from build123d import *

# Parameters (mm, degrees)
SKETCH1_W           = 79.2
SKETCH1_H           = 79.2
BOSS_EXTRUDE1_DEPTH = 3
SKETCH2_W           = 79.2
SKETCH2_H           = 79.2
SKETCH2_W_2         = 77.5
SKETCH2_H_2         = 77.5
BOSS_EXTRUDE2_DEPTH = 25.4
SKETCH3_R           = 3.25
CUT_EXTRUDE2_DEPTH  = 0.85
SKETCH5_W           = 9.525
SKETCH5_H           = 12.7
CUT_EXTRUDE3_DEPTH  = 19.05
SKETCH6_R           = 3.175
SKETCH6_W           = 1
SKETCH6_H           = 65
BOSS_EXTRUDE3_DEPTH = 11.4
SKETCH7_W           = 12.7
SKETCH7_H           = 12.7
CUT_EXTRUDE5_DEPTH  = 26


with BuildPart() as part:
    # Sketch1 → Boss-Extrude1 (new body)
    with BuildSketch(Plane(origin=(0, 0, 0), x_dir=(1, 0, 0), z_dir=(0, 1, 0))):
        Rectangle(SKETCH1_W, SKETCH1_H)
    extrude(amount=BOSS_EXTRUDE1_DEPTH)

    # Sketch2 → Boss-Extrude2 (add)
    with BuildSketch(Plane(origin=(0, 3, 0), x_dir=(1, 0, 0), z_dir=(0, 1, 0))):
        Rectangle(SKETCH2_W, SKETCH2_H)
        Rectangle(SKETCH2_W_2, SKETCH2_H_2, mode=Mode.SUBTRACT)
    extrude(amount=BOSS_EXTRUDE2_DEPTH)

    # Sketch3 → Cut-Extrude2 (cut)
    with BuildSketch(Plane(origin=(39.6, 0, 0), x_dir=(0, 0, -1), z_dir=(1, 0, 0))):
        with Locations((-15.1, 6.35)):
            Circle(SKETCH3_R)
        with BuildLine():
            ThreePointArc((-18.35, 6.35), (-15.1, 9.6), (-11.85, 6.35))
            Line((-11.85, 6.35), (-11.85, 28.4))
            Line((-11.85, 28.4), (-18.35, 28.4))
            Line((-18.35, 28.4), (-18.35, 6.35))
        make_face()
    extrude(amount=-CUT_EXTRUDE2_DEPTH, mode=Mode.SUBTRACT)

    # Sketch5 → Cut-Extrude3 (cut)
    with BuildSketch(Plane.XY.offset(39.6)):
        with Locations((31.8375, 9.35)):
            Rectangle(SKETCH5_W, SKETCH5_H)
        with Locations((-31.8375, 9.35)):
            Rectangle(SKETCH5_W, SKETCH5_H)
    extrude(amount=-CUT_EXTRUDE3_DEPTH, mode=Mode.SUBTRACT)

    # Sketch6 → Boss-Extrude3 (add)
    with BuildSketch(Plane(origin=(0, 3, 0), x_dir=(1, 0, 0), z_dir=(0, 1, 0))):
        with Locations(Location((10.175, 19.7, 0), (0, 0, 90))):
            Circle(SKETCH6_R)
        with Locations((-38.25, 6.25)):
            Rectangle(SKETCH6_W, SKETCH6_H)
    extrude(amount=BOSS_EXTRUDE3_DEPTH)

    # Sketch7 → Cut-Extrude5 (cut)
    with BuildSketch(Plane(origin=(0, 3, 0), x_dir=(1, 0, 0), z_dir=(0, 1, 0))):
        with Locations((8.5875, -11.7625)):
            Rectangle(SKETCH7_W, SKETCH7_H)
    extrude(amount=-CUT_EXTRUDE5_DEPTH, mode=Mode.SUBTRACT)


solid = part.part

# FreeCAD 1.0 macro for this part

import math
import FreeCAD as App
import Part
import Sketcher

V = App.Vector

doc = App.newDocument("Part")
body = doc.addObject("PartDesign::Body", "Body")

# Sketch on XZ plane
sketch1 = body.newObject("Sketcher::SketchObject", "Sketch")
sketch1.AttachmentSupport = (doc.getObject("XZ_Plane"), [""])
sketch1.MapMode = "FlatFace"
sketch1.addGeometry([
    Part.LineSegment(V(-39.6, -39.6, 0), V(-39.6, 39.6, 0)),
    Part.LineSegment(V(-39.6, 39.6, 0), V(39.6, 39.6, 0)),
    Part.LineSegment(V(39.6, 39.6, 0), V(39.6, -39.6, 0)),
    Part.LineSegment(V(39.6, -39.6, 0), V(-39.6, -39.6, 0)),
], False)
sketch1.addConstraint([
    Sketcher.Constraint("Coincident", 0, 2, 1, 1),
    Sketcher.Constraint("Coincident", 1, 2, 2, 1),
    Sketcher.Constraint("Coincident", 2, 2, 3, 1),
    Sketcher.Constraint("Coincident", 3, 2, 0, 1),
    Sketcher.Constraint("Vertical", 0),
    Sketcher.Constraint("Horizontal", 1),
    Sketcher.Constraint("Vertical", 2),
    Sketcher.Constraint("Horizontal", 3),
    Sketcher.Constraint("Symmetric", 0, 2, 2, 2, -1, 1),
    Sketcher.Constraint("Equal", 3, 0),
    Sketcher.Constraint("DistanceX", 1, 1, 1, 2, 79.2),
])
pad1 = body.newObject("PartDesign::Pad", "Pad")
pad1.Profile = sketch1
pad1.Length = 3
pad1.Reversed = True

# Sketch on XZ plane
sketch2 = body.newObject("Sketcher::SketchObject", "Sketch001")
sketch2.AttachmentSupport = (doc.getObject("XZ_Plane"), [""])
sketch2.MapMode = "FlatFace"
sketch2.AttachmentOffset = App.Placement(V(0, 0, -3), App.Rotation())
sketch2.addGeometry([
    Part.LineSegment(V(-39.6, -39.6, 0), V(-39.6, 39.6, 0)),  # 0
    Part.LineSegment(V(-39.6, 39.6, 0), V(39.6, 39.6, 0)),  # 1
    Part.LineSegment(V(39.6, 39.6, 0), V(39.6, -39.6, 0)),  # 2
    Part.LineSegment(V(39.6, -39.6, 0), V(-39.6, -39.6, 0)),  # 3
    Part.LineSegment(V(38.75, 38.75, 0), V(-38.75, 38.75, 0)),  # 4
    Part.LineSegment(V(-38.75, 38.75, 0), V(-38.75, -38.75, 0)),  # 5
    Part.LineSegment(V(-38.75, -38.75, 0), V(38.75, -38.75, 0)),  # 6
    Part.LineSegment(V(38.75, -38.75, 0), V(38.75, 38.75, 0)),  # 7
], False)
sketch2.addConstraint([
    Sketcher.Constraint("Coincident", 0, 2, 1, 1),
    Sketcher.Constraint("Coincident", 1, 2, 2, 1),
    Sketcher.Constraint("Coincident", 2, 2, 3, 1),
    Sketcher.Constraint("Coincident", 3, 2, 0, 1),
    Sketcher.Constraint("Coincident", 4, 2, 5, 1),
    Sketcher.Constraint("Coincident", 5, 2, 6, 1),
    Sketcher.Constraint("Coincident", 6, 2, 7, 1),
    Sketcher.Constraint("Coincident", 7, 2, 4, 1),
    Sketcher.Constraint("Vertical", 0),
    Sketcher.Constraint("Horizontal", 1),
    Sketcher.Constraint("Vertical", 2),
    Sketcher.Constraint("Horizontal", 3),
    Sketcher.Constraint("Horizontal", 4),
    Sketcher.Constraint("Vertical", 5),
    Sketcher.Constraint("Horizontal", 6),
    Sketcher.Constraint("Vertical", 7),
    Sketcher.Constraint("Symmetric", 0, 2, 2, 2, -1, 1),
    Sketcher.Constraint("Symmetric", 4, 2, 6, 2, -1, 1),
    Sketcher.Constraint("Equal", 3, 0),
    Sketcher.Constraint("Equal", 6, 5),
    Sketcher.Constraint("DistanceX", 1, 1, 1, 2, 79.2),
    Sketcher.Constraint("DistanceX", 4, 2, 4, 1, 77.5),
])
pad2 = body.newObject("PartDesign::Pad", "Pad001")
pad2.Profile = sketch2
pad2.Length = 25.4
pad2.Reversed = True

# Sketch on YZ plane
sketch3 = body.newObject("Sketcher::SketchObject", "Sketch002")
sketch3.AttachmentSupport = (doc.getObject("YZ_Plane"), [""])
sketch3.MapMode = "FlatFace"
sketch3.AttachmentOffset = App.Placement(V(0, 0, 39.6), App.Rotation())
sketch3.addGeometry([
    Part.ArcOfCircle(Part.Circle(V(6.35, 15.1, 0), V(0, 0, 1), 3.25), math.radians(90), math.radians(270)),
    Part.LineSegment(V(6.35, 11.85, 0), V(28.4, 11.85, 0)),
    Part.LineSegment(V(28.4, 11.85, 0), V(28.4, 18.35, 0)),
    Part.LineSegment(V(28.4, 18.35, 0), V(6.35, 18.35, 0)),
], False)
sketch3.addConstraint([
    Sketcher.Constraint("Tangent", 0, 2, 1, 1),
    Sketcher.Constraint("Coincident", 1, 2, 2, 1),
    Sketcher.Constraint("Coincident", 2, 2, 3, 1),
    Sketcher.Constraint("Tangent", 3, 2, 0, 1),
    Sketcher.Constraint("Horizontal", 1),
    Sketcher.Constraint("Vertical", 2),
    Sketcher.Constraint("Horizontal", 3),
    Sketcher.Constraint("Radius", 0, 3.25),
    Sketcher.Constraint("DistanceX", 1, 1, 1, 2, 22.05),
    Sketcher.Constraint("DistanceY", -1, 1, 0, 3, 15.1),
    Sketcher.Constraint("DistanceX", -1, 1, 1, 2, 28.4),
])
pocket1 = body.newObject("PartDesign::Pocket", "Pocket")
pocket1.Profile = sketch3
pocket1.Length = 0.85

# Sketch on XY plane
sketch4 = body.newObject("Sketcher::SketchObject", "Sketch003")
sketch4.AttachmentSupport = (doc.getObject("XY_Plane"), [""])
sketch4.MapMode = "FlatFace"
sketch4.AttachmentOffset = App.Placement(V(0, 0, 39.6), App.Rotation())
sketch4.addGeometry([
    Part.LineSegment(V(27.075, 15.7, 0), V(27.075, 3, 0)),  # 0
    Part.LineSegment(V(27.075, 3, 0), V(36.6, 3, 0)),  # 1
    Part.LineSegment(V(36.6, 3, 0), V(36.6, 15.7, 0)),  # 2
    Part.LineSegment(V(36.6, 15.7, 0), V(27.075, 15.7, 0)),  # 3
    Part.LineSegment(V(-36.6, 15.7, 0), V(-36.6, 3, 0)),  # 4
    Part.LineSegment(V(-36.6, 3, 0), V(-27.075, 3, 0)),  # 5
    Part.LineSegment(V(-27.075, 3, 0), V(-27.075, 15.7, 0)),  # 6
    Part.LineSegment(V(-27.075, 15.7, 0), V(-36.6, 15.7, 0)),  # 7
], False)
sketch4.addConstraint([
    Sketcher.Constraint("Coincident", 0, 2, 1, 1),
    Sketcher.Constraint("Coincident", 1, 2, 2, 1),
    Sketcher.Constraint("Coincident", 2, 2, 3, 1),
    Sketcher.Constraint("Coincident", 3, 2, 0, 1),
    Sketcher.Constraint("Coincident", 4, 2, 5, 1),
    Sketcher.Constraint("Coincident", 5, 2, 6, 1),
    Sketcher.Constraint("Coincident", 6, 2, 7, 1),
    Sketcher.Constraint("Coincident", 7, 2, 4, 1),
    Sketcher.Constraint("Vertical", 0),
    Sketcher.Constraint("Horizontal", 1),
    Sketcher.Constraint("Vertical", 2),
    Sketcher.Constraint("Horizontal", 3),
    Sketcher.Constraint("Vertical", 4),
    Sketcher.Constraint("Horizontal", 5),
    Sketcher.Constraint("Vertical", 6),
    Sketcher.Constraint("Horizontal", 7),
    Sketcher.Constraint("Symmetric", 1, 2, 4, 2, -2),
    Sketcher.Constraint("Symmetric", 3, 2, 6, 2, -2),
    Sketcher.Constraint("DistanceY", 0, 2, 0, 1, 12.7),
    Sketcher.Constraint("DistanceY", -1, 1, 0, 2, 3.0),
    Sketcher.Constraint("DistanceX", -1, 1, 1, 2, 36.6),
    Sketcher.Constraint("DistanceX", 1, 1, 1, 2, 9.525),
])
pocket2 = body.newObject("PartDesign::Pocket", "Pocket001")
pocket2.Profile = sketch4
pocket2.Length = 19.05

# Sketch on XZ plane
sketch5 = body.newObject("Sketcher::SketchObject", "Sketch004")
sketch5.AttachmentSupport = (doc.getObject("XZ_Plane"), [""])
sketch5.MapMode = "FlatFace"
sketch5.AttachmentOffset = App.Placement(V(0, 0, -3), App.Rotation())
sketch5.addGeometry([
    Part.Circle(V(10.175, -19.7, 0), V(0, 0, 1), 3.175),  # 0
    Part.LineSegment(V(-38.75, -38.75, 0), V(-38.75, 26.25, 0)),  # 1
    Part.LineSegment(V(-38.75, 26.25, 0), V(-37.75, 26.25, 0)),  # 2
    Part.LineSegment(V(-37.75, 26.25, 0), V(-37.75, -38.75, 0)),  # 3
    Part.LineSegment(V(-37.75, -38.75, 0), V(-38.75, -38.75, 0)),  # 4
], False)
sketch5.addConstraint([
    Sketcher.Constraint("Coincident", 1, 2, 2, 1),
    Sketcher.Constraint("Coincident", 2, 2, 3, 1),
    Sketcher.Constraint("Coincident", 3, 2, 4, 1),
    Sketcher.Constraint("Coincident", 4, 2, 1, 1),
    Sketcher.Constraint("Vertical", 1),
    Sketcher.Constraint("Horizontal", 2),
    Sketcher.Constraint("Vertical", 3),
    Sketcher.Constraint("Horizontal", 4),
    Sketcher.Constraint("Diameter", 0, 6.35),
    Sketcher.Constraint("DistanceX", 2, 1, 2, 2, 1.0),
    Sketcher.Constraint("DistanceY", 1, 1, 1, 2, 65.0),
    Sketcher.Constraint("DistanceY", 0, 3, -1, 1, 19.7),
    Sketcher.Constraint("DistanceX", 1, 2, -1, 1, 38.75),
    Sketcher.Constraint("DistanceY", -1, 1, 1, 2, 26.25),
    Sketcher.Constraint("DistanceX", -1, 1, 0, 3, 10.175),
])
pad3 = body.newObject("PartDesign::Pad", "Pad002")
pad3.Profile = sketch5
pad3.Length = 11.4
pad3.Reversed = True

# Sketch on XZ plane
sketch6 = body.newObject("Sketcher::SketchObject", "Sketch005")
sketch6.AttachmentSupport = (doc.getObject("XZ_Plane"), [""])
sketch6.MapMode = "FlatFace"
sketch6.AttachmentOffset = App.Placement(V(0, 0, -3), App.Rotation())
sketch6.addGeometry([
    Part.LineSegment(V(2.2375, 5.4125, 0), V(2.2375, 18.1125, 0)),
    Part.LineSegment(V(2.2375, 18.1125, 0), V(14.9375, 18.1125, 0)),
    Part.LineSegment(V(14.9375, 18.1125, 0), V(14.9375, 5.4125, 0)),
    Part.LineSegment(V(14.9375, 5.4125, 0), V(2.2375, 5.4125, 0)),
], False)
sketch6.addConstraint([
    Sketcher.Constraint("Coincident", 0, 2, 1, 1),
    Sketcher.Constraint("Coincident", 1, 2, 2, 1),
    Sketcher.Constraint("Coincident", 2, 2, 3, 1),
    Sketcher.Constraint("Coincident", 3, 2, 0, 1),
    Sketcher.Constraint("Vertical", 0),
    Sketcher.Constraint("Horizontal", 1),
    Sketcher.Constraint("Vertical", 2),
    Sketcher.Constraint("Horizontal", 3),
    Sketcher.Constraint("Equal", 3, 0),
    Sketcher.Constraint("DistanceX", 1, 1, 1, 2, 12.7),
    Sketcher.Constraint("DistanceX", -1, 1, 0, 2, 2.2375),
    Sketcher.Constraint("DistanceY", -1, 1, 0, 2, 18.1125),
])
pocket3 = body.newObject("PartDesign::Pocket", "Pocket002")
pocket3.Profile = sketch6
pocket3.Length = 26
pocket3.Reversed = True

doc.recompute()
